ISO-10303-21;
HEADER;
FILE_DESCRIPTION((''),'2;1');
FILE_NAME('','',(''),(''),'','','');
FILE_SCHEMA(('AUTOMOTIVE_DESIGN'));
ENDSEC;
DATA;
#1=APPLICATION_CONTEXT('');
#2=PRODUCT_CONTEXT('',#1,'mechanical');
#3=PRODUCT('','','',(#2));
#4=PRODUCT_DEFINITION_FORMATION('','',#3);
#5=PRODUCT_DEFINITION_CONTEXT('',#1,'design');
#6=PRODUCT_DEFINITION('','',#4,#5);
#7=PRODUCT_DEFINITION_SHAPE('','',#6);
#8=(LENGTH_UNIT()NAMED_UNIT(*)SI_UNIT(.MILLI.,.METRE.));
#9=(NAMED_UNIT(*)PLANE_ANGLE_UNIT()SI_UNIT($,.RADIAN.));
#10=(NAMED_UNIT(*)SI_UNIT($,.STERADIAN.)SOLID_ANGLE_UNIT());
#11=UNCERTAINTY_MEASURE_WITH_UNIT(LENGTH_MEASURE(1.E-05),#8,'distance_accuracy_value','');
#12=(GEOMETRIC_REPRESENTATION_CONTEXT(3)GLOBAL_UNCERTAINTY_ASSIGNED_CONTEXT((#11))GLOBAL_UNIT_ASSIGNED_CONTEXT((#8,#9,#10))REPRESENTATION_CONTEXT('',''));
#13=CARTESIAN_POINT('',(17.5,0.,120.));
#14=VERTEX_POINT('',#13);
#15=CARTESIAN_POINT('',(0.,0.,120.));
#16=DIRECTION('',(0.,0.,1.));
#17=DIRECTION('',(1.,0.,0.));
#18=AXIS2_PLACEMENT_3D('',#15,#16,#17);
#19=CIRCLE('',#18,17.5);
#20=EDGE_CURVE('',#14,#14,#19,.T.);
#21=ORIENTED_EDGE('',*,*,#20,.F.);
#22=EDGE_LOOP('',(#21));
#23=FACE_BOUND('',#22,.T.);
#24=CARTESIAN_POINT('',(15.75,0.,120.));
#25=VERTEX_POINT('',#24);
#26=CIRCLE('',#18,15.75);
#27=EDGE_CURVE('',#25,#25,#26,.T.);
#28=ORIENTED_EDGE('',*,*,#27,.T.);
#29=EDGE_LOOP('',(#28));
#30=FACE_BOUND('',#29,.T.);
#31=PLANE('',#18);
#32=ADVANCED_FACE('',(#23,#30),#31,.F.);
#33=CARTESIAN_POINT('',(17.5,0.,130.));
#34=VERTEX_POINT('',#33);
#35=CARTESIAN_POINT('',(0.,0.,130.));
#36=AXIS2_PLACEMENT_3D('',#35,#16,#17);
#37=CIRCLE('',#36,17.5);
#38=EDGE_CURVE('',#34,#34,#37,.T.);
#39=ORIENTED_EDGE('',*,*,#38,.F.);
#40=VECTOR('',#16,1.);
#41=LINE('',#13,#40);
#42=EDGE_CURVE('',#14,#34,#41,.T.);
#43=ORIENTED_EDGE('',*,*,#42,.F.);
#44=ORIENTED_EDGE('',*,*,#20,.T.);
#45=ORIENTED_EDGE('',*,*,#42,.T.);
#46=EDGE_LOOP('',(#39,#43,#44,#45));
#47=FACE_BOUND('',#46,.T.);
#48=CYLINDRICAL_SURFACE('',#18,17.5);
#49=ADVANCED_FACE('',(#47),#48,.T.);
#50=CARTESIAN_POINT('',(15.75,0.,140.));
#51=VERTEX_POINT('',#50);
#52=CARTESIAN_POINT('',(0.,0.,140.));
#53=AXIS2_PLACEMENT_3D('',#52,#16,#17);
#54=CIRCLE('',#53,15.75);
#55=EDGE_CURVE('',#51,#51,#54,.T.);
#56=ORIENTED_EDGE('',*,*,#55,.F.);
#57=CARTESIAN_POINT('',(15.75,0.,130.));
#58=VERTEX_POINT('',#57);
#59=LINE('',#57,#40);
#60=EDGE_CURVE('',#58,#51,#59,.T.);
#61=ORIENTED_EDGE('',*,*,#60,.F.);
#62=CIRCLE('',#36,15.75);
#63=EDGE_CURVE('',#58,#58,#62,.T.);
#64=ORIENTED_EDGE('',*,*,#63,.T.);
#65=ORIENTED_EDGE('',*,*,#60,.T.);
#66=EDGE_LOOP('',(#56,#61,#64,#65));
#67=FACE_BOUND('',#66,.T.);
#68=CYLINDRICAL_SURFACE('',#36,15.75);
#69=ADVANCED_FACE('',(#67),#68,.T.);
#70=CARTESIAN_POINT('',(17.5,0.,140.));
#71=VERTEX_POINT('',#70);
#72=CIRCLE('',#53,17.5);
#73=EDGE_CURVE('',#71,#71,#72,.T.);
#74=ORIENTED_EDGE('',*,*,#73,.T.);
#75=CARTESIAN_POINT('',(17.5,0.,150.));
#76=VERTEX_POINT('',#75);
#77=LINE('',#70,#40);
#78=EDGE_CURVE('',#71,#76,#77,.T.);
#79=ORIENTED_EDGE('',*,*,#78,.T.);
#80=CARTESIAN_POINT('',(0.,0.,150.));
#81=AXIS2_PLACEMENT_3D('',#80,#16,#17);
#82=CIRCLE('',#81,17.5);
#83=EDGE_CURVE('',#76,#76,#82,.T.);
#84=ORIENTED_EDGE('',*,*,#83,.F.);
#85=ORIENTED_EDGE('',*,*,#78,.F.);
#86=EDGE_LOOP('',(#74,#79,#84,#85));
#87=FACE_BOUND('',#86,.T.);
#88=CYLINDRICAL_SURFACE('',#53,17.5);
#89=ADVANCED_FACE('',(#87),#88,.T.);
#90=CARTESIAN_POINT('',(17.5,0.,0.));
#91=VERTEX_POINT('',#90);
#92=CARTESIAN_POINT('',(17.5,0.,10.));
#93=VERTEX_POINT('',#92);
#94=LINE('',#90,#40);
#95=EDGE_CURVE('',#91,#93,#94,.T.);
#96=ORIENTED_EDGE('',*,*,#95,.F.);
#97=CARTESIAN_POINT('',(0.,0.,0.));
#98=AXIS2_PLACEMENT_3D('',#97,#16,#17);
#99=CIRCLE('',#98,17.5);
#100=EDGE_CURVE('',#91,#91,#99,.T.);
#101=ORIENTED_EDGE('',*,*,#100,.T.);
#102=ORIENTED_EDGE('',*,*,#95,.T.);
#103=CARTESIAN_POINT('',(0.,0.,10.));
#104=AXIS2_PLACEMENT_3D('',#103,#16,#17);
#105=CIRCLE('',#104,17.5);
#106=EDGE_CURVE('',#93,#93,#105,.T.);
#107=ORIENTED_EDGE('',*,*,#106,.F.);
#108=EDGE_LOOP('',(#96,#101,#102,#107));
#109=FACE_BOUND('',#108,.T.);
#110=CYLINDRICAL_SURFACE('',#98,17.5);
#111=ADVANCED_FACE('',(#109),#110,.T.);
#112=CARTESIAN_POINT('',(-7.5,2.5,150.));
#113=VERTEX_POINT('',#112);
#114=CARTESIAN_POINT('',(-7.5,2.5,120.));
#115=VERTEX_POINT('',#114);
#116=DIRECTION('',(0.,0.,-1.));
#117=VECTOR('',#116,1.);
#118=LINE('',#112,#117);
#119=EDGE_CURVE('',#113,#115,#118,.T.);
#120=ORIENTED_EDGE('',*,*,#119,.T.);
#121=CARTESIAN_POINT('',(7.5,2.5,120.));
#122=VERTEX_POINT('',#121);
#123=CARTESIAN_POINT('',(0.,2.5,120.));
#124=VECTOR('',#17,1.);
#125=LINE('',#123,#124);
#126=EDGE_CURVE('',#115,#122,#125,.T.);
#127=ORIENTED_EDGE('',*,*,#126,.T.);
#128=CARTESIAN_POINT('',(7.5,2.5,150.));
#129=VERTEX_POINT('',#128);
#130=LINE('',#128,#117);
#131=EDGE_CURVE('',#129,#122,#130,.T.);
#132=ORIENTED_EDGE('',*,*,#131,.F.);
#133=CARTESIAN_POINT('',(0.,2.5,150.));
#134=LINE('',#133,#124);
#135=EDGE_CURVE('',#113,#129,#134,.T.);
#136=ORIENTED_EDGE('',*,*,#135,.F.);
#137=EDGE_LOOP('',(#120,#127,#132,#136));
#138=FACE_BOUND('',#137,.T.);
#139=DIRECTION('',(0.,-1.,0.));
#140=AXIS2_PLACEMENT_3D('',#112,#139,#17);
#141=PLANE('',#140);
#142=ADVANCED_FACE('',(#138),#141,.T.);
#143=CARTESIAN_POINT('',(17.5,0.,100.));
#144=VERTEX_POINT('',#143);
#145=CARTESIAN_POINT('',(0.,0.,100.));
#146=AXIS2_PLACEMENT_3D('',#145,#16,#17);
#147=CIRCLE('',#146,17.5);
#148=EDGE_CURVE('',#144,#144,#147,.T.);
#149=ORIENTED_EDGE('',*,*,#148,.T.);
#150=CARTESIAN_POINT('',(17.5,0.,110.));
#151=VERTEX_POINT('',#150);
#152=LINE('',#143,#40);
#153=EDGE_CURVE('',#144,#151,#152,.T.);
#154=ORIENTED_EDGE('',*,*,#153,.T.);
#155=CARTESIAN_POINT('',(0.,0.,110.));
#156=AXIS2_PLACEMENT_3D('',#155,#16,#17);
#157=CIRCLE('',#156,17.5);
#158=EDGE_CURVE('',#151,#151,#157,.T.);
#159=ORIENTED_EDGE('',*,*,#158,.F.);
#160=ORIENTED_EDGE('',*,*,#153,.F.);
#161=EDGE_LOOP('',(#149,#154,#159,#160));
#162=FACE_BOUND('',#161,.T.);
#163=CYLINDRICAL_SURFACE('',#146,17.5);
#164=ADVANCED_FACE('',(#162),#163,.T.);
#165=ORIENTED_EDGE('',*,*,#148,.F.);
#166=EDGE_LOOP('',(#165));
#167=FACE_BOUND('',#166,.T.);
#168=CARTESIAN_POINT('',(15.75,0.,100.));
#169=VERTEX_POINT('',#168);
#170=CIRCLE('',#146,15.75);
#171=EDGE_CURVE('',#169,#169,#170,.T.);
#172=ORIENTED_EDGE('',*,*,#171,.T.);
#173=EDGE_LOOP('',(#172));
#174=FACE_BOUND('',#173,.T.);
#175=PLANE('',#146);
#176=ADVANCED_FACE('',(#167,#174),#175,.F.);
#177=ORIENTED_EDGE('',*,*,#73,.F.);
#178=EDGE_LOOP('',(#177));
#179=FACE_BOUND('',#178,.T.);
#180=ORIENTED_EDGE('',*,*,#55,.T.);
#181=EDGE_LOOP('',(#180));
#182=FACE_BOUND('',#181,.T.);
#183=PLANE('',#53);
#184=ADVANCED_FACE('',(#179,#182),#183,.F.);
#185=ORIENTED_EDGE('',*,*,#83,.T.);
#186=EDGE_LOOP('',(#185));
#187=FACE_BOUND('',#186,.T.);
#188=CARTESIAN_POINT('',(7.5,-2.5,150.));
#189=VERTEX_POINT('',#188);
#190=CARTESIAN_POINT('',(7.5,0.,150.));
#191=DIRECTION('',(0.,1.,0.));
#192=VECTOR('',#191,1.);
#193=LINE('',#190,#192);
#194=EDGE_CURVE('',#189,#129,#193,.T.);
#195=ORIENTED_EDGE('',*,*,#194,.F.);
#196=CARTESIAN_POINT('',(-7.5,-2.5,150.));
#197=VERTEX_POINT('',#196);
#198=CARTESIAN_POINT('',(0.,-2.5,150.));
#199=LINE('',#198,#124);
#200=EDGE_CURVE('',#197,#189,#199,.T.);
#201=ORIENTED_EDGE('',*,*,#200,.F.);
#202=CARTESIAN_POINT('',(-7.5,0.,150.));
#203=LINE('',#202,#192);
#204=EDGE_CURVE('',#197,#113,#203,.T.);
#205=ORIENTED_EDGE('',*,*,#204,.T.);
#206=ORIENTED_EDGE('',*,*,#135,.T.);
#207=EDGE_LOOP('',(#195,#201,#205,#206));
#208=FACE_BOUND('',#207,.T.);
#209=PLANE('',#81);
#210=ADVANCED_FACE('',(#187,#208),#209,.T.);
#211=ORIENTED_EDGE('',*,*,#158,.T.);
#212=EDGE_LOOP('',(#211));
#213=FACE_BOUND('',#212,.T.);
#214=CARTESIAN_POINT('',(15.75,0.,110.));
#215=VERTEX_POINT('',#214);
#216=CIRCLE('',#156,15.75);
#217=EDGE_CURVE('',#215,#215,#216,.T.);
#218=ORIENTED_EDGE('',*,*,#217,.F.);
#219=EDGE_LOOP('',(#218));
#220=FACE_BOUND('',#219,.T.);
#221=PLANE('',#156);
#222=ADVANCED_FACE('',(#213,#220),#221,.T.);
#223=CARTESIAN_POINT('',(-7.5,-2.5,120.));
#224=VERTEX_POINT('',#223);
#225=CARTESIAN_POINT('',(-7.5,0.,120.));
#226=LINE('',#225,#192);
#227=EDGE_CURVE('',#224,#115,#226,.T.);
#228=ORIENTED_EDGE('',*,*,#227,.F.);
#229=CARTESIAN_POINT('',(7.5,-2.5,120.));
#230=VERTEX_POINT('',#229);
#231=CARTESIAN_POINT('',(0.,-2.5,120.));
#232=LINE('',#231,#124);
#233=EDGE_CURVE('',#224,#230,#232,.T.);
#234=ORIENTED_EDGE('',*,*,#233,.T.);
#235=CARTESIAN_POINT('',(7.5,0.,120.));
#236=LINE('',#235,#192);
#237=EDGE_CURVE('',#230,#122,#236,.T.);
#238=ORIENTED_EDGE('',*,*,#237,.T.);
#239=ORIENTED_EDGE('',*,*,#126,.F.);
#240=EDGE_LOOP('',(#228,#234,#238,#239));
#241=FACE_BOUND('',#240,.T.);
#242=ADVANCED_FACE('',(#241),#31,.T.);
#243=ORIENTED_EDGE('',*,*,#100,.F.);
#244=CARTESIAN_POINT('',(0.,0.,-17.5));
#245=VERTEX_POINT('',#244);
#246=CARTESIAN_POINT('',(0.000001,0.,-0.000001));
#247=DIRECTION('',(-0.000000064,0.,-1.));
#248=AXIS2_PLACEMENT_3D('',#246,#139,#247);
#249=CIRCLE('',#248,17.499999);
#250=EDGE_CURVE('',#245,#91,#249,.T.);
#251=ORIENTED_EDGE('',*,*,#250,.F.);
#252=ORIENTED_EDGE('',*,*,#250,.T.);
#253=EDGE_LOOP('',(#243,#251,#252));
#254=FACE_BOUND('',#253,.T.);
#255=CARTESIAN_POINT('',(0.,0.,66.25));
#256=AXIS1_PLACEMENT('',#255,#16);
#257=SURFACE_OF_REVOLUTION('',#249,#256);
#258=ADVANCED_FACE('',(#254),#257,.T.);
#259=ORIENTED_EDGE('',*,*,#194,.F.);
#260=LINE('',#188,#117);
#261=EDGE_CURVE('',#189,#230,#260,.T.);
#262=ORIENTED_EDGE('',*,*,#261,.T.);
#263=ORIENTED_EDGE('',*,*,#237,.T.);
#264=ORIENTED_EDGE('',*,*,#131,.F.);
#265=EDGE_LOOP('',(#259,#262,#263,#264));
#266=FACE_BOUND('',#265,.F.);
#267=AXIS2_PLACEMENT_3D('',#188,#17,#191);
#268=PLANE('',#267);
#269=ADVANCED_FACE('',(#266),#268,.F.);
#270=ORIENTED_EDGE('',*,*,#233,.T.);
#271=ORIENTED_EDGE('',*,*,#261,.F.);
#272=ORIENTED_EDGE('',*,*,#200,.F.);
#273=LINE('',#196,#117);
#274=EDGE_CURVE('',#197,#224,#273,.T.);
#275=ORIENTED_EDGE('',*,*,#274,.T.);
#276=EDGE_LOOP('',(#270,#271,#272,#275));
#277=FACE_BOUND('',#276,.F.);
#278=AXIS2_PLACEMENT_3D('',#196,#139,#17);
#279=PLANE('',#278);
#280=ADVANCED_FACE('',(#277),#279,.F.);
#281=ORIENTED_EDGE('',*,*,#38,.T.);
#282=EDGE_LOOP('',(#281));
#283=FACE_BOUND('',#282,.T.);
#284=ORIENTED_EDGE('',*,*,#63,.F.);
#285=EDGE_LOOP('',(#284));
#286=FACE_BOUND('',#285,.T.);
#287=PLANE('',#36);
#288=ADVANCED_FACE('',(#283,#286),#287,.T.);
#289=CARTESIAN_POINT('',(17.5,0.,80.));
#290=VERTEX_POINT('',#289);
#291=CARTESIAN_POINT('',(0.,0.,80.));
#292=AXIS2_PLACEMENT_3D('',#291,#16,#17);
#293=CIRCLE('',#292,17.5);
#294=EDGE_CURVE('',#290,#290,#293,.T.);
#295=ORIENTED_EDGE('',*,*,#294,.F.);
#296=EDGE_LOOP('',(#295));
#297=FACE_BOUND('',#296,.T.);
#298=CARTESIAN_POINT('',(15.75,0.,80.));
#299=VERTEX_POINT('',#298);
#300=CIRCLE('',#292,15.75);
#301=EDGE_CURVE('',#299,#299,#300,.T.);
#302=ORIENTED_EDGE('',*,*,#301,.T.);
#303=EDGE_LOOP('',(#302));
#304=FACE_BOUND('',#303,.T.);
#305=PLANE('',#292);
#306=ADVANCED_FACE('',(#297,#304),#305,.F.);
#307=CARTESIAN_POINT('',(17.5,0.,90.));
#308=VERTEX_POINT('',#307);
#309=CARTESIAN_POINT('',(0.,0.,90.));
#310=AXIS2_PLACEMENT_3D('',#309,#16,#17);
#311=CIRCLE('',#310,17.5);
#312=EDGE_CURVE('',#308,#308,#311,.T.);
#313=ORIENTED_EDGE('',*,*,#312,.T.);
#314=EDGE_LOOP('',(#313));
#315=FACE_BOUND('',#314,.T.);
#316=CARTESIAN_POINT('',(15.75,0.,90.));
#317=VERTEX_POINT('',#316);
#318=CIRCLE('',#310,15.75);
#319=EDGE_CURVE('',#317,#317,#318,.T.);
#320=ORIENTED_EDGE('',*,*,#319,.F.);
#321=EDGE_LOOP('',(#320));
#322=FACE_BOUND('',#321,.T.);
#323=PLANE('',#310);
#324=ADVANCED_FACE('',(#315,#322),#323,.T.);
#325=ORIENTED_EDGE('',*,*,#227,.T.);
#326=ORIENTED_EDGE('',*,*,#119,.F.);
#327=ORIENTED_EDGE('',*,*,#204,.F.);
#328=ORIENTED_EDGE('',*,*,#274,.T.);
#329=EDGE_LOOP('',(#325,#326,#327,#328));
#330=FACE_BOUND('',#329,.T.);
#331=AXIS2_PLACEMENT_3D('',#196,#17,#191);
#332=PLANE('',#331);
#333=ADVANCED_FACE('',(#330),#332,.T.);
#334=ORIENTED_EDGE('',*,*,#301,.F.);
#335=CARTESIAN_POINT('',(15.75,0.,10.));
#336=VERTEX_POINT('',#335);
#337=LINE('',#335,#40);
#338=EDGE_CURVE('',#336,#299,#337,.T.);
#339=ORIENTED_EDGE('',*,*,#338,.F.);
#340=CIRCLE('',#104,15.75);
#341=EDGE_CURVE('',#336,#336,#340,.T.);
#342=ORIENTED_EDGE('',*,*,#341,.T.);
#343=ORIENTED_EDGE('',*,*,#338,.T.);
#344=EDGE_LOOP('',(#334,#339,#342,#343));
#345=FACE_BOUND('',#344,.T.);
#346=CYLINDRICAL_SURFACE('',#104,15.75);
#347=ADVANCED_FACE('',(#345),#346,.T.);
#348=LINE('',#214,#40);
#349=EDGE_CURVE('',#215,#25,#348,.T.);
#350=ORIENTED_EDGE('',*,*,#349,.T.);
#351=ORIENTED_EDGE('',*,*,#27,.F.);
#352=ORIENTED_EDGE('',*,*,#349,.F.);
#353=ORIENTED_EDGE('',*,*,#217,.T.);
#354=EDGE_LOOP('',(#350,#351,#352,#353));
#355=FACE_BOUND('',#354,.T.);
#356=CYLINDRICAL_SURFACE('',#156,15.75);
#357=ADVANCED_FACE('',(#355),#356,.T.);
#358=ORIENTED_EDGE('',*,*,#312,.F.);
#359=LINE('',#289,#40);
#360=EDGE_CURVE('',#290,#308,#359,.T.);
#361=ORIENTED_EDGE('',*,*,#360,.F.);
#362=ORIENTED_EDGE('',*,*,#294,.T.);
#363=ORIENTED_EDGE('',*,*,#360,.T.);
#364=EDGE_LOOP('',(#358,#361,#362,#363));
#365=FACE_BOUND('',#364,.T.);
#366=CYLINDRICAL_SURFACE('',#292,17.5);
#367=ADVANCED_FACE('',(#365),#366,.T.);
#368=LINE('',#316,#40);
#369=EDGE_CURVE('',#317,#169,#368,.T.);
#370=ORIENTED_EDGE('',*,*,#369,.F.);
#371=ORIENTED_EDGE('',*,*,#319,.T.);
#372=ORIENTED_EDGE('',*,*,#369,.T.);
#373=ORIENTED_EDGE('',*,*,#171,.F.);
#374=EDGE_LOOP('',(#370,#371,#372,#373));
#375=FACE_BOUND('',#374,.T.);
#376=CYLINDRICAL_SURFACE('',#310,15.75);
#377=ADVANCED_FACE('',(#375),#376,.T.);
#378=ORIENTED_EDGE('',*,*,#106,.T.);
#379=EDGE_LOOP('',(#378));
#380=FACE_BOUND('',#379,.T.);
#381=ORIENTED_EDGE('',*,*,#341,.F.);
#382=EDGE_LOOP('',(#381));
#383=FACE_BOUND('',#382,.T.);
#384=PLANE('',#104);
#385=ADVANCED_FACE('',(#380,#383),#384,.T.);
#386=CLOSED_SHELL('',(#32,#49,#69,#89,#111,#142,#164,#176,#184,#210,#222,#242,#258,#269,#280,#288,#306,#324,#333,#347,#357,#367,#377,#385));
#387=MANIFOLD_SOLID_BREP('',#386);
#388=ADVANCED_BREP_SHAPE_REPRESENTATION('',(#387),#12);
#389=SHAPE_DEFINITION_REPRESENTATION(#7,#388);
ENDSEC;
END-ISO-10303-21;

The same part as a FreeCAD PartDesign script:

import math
import FreeCAD as App
import Part
import Sketcher

doc = App.newDocument("Part")
body = doc.addObject("PartDesign::Body", "Body")

sketch1 = body.newObject("Sketcher::SketchObject", "Sketch")
sketch1.AttachmentSupport = (doc.getObject("XZ_Plane"), [""])
sketch1.MapMode = "FlatFace"
sketch1.addGeometry(Part.LineSegment(App.Vector(0, 150, 0), App.Vector(0, -17.5, 0)), False)
sketch1.addGeometry(Part.ArcOfCircle(Part.Circle(App.Vector(0, 0, 0), App.Vector(0, 0, 1), 17.5), math.radians(-90), math.radians(0)), False)
sketch1.addGeometry(Part.LineSegment(App.Vector(17.5, 0, 0), App.Vector(17.5, 10, 0)), False)
sketch1.addGeometry(Part.LineSegment(App.Vector(17.5, 10, 0), App.Vector(15.8, 10, 0)), False)
sketch1.addGeometry(Part.LineSegment(App.Vector(15.8, 10, 0), App.Vector(15.8, 80, 0)), False)
sketch1.addGeometry(Part.LineSegment(App.Vector(15.8, 80, 0), App.Vector(17.5, 80, 0)), False)
sketch1.addGeometry(Part.LineSegment(App.Vector(17.5, 80, 0), App.Vector(17.5, 90, 0)), False)
sketch1.addGeometry(Part.LineSegment(App.Vector(17.5, 90, 0), App.Vector(15.8, 90, 0)), False)
sketch1.addGeometry(Part.LineSegment(App.Vector(15.8, 90, 0), App.Vector(15.8, 100, 0)), False)
sketch1.addGeometry(Part.LineSegment(App.Vector(15.8, 100, 0), App.Vector(17.5, 100, 0)), False)
sketch1.addGeometry(Part.LineSegment(App.Vector(17.5, 100, 0), App.Vector(17.5, 110, 0)), False)
sketch1.addGeometry(Part.LineSegment(App.Vector(17.5, 110, 0), App.Vector(15.8, 110, 0)), False)
sketch1.addGeometry(Part.LineSegment(App.Vector(15.8, 110, 0), App.Vector(15.8, 120, 0)), False)
sketch1.addGeometry(Part.LineSegment(App.Vector(15.8, 120, 0), App.Vector(17.5, 120, 0)), False)
sketch1.addGeometry(Part.LineSegment(App.Vector(17.5, 120, 0), App.Vector(17.5, 130, 0)), False)
sketch1.addGeometry(Part.LineSegment(App.Vector(17.5, 130, 0), App.Vector(15.8, 130, 0)), False)
sketch1.addGeometry(Part.LineSegment(App.Vector(15.8, 130, 0), App.Vector(15.8, 140, 0)), False)
sketch1.addGeometry(Part.LineSegment(App.Vector(15.8, 140, 0), App.Vector(17.5, 140, 0)), False)
sketch1.addGeometry(Part.LineSegment(App.Vector(17.5, 140, 0), App.Vector(17.5, 150, 0)), False)
sketch1.addGeometry(Part.LineSegment(App.Vector(17.5, 150, 0), App.Vector(0, 150, 0)), False)
sketch1.addConstraint(Sketcher.Constraint("Coincident", 0, 2, 1, 1))
sketch1.addConstraint(Sketcher.Constraint("Tangent", 1, 2, 2, 1))
sketch1.addConstraint(Sketcher.Constraint("Coincident", 2, 2, 3, 1))
sketch1.addConstraint(Sketcher.Constraint("Coincident", 3, 2, 4, 1))
sketch1.addConstraint(Sketcher.Constraint("Coincident", 4, 2, 5, 1))
sketch1.addConstraint(Sketcher.Constraint("Coincident", 5, 2, 6, 1))
sketch1.addConstraint(Sketcher.Constraint("Coincident", 6, 2, 7, 1))
sketch1.addConstraint(Sketcher.Constraint("Coincident", 7, 2, 8, 1))
sketch1.addConstraint(Sketcher.Constraint("Coincident", 8, 2, 9, 1))
sketch1.addConstraint(Sketcher.Constraint("Coincident", 9, 2, 10, 1))
sketch1.addConstraint(Sketcher.Constraint("Coincident", 10, 2, 11, 1))
sketch1.addConstraint(Sketcher.Constraint("Coincident", 11, 2, 12, 1))
sketch1.addConstraint(Sketcher.Constraint("Coincident", 12, 2, 13, 1))
sketch1.addConstraint(Sketcher.Constraint("Coincident", 13, 2, 14, 1))
sketch1.addConstraint(Sketcher.Constraint("Coincident", 14, 2, 15, 1))
sketch1.addConstraint(Sketcher.Constraint("Coincident", 15, 2, 16, 1))
sketch1.addConstraint(Sketcher.Constraint("Coincident", 16, 2, 17, 1))
sketch1.addConstraint(Sketcher.Constraint("Coincident", 17, 2, 18, 1))
sketch1.addConstraint(Sketcher.Constraint("Coincident", 18, 2, 19, 1))
sketch1.addConstraint(Sketcher.Constraint("Coincident", 19, 2, 0, 1))
sketch1.addConstraint(Sketcher.Constraint("Vertical", 0))
sketch1.addConstraint(Sketcher.Constraint("Vertical", 2))
sketch1.addConstraint(Sketcher.Constraint("Horizontal", 3))
sketch1.addConstraint(Sketcher.Constraint("Vertical", 4))
sketch1.addConstraint(Sketcher.Constraint("Horizontal", 5))
sketch1.addConstraint(Sketcher.Constraint("Vertical", 6))
sketch1.addConstraint(Sketcher.Constraint("Horizontal", 7))
sketch1.addConstraint(Sketcher.Constraint("Vertical", 8))
sketch1.addConstraint(Sketcher.Constraint("Horizontal", 9))
sketch1.addConstraint(Sketcher.Constraint("Vertical", 10))
sketch1.addConstraint(Sketcher.Constraint("Horizontal", 11))
sketch1.addConstraint(Sketcher.Constraint("Vertical", 12))
sketch1.addConstraint(Sketcher.Constraint("Horizontal", 13))
sketch1.addConstraint(Sketcher.Constraint("Vertical", 14))
sketch1.addConstraint(Sketcher.Constraint("Horizontal", 15))
sketch1.addConstraint(Sketcher.Constraint("Vertical", 16))
sketch1.addConstraint(Sketcher.Constraint("Horizontal", 17))
sketch1.addConstraint(Sketcher.Constraint("Vertical", 18))
sketch1.addConstraint(Sketcher.Constraint("Horizontal", 19))
sketch1.addConstraint(Sketcher.Constraint("Coincident", 1, 3, -1, 1))
sketch1.addConstraint(Sketcher.Constraint("PointOnObject", 0, 2, -2))
sketch1.addConstraint(Sketcher.Constraint("Vertical", 2, 2, 5, 2))
sketch1.addConstraint(Sketcher.Constraint("Vertical", 4, 2, 7, 2))
sketch1.addConstraint(Sketcher.Constraint("Vertical", 6, 2, 9, 2))
sketch1.addConstraint(Sketcher.Constraint("Vertical", 8, 2, 11, 2))
sketch1.addConstraint(Sketcher.Constraint("Vertical", 10, 2, 13, 2))
sketch1.addConstraint(Sketcher.Constraint("Vertical", 12, 2, 15, 2))
sketch1.addConstraint(Sketcher.Constraint("Vertical", 14, 2, 17, 2))
sketch1.addConstraint(Sketcher.Constraint("Equal", 2, 6))
sketch1.addConstraint(Sketcher.Constraint("Equal", 6, 8))
sketch1.addConstraint(Sketcher.Constraint("Equal", 8, 10))
sketch1.addConstraint(Sketcher.Constraint("Equal", 10, 12))
sketch1.addConstraint(Sketcher.Constraint("Equal", 12, 14))
sketch1.addConstraint(Sketcher.Constraint("Equal", 14, 16))
sketch1.addConstraint(Sketcher.Constraint("Equal", 16, 18))
sketch1.addConstraint(Sketcher.Constraint("Radius", 1, 17.499999))
sketch1.addConstraint(Sketcher.Constraint("DistanceY", 2, 1, 2, 2, 10.0))
sketch1.addConstraint(Sketcher.Constraint("DistanceY", 4, 1, 4, 2, 70.0))
sketch1.addConstraint(Sketcher.Constraint("DistanceX", 3, 2, 3, 1, 1.75))
revolution = body.newObject("PartDesign::Revolution", "Revolution")
revolution.Profile = sketch1
revolution.ReferenceAxis = (sketch1, ["V_Axis"])
revolution.Angle = 360

sketch2 = body.newObject("Sketcher::SketchObject", "Sketch001")
sketch2.AttachmentSupport = (doc.getObject("XY_Plane"), [""])
sketch2.MapMode = "FlatFace"
sketch2.AttachmentOffset = App.Placement(App.Vector(0, 0, 150), App.Rotation())
sketch2.addGeometry(Part.LineSegment(App.Vector(-8, 2, 0), App.Vector(-8, -2, 0)), False)
sketch2.addGeometry(Part.LineSegment(App.Vector(-8, -2, 0), App.Vector(8, -2, 0)), False)
sketch2.addGeometry(Part.LineSegment(App.Vector(8, -2, 0), App.Vector(8, 2, 0)), False)
sketch2.addGeometry(Part.LineSegment(App.Vector(8, 2, 0), App.Vector(-8, 2, 0)), False)
sketch2.addConstraint(Sketcher.Constraint("Coincident", 0, 2, 1, 1))
sketch2.addConstraint(Sketcher.Constraint("Coincident", 1, 2, 2, 1))
sketch2.addConstraint(Sketcher.Constraint("Coincident", 2, 2, 3, 1))
sketch2.addConstraint(Sketcher.Constraint("Coincident", 3, 2, 0, 1))
sketch2.addConstraint(Sketcher.Constraint("Vertical", 0))
sketch2.addConstraint(Sketcher.Constraint("Horizontal", 1))
sketch2.addConstraint(Sketcher.Constraint("Vertical", 2))
sketch2.addConstraint(Sketcher.Constraint("Horizontal", 3))
sketch2.addConstraint(Sketcher.Constraint("Symmetric", 0, 2, 2, 2, -1, 1))
sketch2.addConstraint(Sketcher.Constraint("DistanceX", 1, 1, 1, 2, 15.0))
sketch2.addConstraint(Sketcher.Constraint("DistanceY", 0, 2, 0, 1, 5.0))
pocket1 = body.newObject("PartDesign::Pocket", "Pocket")
pocket1.Profile = sketch2
pocket1.Length = 30

doc.recompute()
